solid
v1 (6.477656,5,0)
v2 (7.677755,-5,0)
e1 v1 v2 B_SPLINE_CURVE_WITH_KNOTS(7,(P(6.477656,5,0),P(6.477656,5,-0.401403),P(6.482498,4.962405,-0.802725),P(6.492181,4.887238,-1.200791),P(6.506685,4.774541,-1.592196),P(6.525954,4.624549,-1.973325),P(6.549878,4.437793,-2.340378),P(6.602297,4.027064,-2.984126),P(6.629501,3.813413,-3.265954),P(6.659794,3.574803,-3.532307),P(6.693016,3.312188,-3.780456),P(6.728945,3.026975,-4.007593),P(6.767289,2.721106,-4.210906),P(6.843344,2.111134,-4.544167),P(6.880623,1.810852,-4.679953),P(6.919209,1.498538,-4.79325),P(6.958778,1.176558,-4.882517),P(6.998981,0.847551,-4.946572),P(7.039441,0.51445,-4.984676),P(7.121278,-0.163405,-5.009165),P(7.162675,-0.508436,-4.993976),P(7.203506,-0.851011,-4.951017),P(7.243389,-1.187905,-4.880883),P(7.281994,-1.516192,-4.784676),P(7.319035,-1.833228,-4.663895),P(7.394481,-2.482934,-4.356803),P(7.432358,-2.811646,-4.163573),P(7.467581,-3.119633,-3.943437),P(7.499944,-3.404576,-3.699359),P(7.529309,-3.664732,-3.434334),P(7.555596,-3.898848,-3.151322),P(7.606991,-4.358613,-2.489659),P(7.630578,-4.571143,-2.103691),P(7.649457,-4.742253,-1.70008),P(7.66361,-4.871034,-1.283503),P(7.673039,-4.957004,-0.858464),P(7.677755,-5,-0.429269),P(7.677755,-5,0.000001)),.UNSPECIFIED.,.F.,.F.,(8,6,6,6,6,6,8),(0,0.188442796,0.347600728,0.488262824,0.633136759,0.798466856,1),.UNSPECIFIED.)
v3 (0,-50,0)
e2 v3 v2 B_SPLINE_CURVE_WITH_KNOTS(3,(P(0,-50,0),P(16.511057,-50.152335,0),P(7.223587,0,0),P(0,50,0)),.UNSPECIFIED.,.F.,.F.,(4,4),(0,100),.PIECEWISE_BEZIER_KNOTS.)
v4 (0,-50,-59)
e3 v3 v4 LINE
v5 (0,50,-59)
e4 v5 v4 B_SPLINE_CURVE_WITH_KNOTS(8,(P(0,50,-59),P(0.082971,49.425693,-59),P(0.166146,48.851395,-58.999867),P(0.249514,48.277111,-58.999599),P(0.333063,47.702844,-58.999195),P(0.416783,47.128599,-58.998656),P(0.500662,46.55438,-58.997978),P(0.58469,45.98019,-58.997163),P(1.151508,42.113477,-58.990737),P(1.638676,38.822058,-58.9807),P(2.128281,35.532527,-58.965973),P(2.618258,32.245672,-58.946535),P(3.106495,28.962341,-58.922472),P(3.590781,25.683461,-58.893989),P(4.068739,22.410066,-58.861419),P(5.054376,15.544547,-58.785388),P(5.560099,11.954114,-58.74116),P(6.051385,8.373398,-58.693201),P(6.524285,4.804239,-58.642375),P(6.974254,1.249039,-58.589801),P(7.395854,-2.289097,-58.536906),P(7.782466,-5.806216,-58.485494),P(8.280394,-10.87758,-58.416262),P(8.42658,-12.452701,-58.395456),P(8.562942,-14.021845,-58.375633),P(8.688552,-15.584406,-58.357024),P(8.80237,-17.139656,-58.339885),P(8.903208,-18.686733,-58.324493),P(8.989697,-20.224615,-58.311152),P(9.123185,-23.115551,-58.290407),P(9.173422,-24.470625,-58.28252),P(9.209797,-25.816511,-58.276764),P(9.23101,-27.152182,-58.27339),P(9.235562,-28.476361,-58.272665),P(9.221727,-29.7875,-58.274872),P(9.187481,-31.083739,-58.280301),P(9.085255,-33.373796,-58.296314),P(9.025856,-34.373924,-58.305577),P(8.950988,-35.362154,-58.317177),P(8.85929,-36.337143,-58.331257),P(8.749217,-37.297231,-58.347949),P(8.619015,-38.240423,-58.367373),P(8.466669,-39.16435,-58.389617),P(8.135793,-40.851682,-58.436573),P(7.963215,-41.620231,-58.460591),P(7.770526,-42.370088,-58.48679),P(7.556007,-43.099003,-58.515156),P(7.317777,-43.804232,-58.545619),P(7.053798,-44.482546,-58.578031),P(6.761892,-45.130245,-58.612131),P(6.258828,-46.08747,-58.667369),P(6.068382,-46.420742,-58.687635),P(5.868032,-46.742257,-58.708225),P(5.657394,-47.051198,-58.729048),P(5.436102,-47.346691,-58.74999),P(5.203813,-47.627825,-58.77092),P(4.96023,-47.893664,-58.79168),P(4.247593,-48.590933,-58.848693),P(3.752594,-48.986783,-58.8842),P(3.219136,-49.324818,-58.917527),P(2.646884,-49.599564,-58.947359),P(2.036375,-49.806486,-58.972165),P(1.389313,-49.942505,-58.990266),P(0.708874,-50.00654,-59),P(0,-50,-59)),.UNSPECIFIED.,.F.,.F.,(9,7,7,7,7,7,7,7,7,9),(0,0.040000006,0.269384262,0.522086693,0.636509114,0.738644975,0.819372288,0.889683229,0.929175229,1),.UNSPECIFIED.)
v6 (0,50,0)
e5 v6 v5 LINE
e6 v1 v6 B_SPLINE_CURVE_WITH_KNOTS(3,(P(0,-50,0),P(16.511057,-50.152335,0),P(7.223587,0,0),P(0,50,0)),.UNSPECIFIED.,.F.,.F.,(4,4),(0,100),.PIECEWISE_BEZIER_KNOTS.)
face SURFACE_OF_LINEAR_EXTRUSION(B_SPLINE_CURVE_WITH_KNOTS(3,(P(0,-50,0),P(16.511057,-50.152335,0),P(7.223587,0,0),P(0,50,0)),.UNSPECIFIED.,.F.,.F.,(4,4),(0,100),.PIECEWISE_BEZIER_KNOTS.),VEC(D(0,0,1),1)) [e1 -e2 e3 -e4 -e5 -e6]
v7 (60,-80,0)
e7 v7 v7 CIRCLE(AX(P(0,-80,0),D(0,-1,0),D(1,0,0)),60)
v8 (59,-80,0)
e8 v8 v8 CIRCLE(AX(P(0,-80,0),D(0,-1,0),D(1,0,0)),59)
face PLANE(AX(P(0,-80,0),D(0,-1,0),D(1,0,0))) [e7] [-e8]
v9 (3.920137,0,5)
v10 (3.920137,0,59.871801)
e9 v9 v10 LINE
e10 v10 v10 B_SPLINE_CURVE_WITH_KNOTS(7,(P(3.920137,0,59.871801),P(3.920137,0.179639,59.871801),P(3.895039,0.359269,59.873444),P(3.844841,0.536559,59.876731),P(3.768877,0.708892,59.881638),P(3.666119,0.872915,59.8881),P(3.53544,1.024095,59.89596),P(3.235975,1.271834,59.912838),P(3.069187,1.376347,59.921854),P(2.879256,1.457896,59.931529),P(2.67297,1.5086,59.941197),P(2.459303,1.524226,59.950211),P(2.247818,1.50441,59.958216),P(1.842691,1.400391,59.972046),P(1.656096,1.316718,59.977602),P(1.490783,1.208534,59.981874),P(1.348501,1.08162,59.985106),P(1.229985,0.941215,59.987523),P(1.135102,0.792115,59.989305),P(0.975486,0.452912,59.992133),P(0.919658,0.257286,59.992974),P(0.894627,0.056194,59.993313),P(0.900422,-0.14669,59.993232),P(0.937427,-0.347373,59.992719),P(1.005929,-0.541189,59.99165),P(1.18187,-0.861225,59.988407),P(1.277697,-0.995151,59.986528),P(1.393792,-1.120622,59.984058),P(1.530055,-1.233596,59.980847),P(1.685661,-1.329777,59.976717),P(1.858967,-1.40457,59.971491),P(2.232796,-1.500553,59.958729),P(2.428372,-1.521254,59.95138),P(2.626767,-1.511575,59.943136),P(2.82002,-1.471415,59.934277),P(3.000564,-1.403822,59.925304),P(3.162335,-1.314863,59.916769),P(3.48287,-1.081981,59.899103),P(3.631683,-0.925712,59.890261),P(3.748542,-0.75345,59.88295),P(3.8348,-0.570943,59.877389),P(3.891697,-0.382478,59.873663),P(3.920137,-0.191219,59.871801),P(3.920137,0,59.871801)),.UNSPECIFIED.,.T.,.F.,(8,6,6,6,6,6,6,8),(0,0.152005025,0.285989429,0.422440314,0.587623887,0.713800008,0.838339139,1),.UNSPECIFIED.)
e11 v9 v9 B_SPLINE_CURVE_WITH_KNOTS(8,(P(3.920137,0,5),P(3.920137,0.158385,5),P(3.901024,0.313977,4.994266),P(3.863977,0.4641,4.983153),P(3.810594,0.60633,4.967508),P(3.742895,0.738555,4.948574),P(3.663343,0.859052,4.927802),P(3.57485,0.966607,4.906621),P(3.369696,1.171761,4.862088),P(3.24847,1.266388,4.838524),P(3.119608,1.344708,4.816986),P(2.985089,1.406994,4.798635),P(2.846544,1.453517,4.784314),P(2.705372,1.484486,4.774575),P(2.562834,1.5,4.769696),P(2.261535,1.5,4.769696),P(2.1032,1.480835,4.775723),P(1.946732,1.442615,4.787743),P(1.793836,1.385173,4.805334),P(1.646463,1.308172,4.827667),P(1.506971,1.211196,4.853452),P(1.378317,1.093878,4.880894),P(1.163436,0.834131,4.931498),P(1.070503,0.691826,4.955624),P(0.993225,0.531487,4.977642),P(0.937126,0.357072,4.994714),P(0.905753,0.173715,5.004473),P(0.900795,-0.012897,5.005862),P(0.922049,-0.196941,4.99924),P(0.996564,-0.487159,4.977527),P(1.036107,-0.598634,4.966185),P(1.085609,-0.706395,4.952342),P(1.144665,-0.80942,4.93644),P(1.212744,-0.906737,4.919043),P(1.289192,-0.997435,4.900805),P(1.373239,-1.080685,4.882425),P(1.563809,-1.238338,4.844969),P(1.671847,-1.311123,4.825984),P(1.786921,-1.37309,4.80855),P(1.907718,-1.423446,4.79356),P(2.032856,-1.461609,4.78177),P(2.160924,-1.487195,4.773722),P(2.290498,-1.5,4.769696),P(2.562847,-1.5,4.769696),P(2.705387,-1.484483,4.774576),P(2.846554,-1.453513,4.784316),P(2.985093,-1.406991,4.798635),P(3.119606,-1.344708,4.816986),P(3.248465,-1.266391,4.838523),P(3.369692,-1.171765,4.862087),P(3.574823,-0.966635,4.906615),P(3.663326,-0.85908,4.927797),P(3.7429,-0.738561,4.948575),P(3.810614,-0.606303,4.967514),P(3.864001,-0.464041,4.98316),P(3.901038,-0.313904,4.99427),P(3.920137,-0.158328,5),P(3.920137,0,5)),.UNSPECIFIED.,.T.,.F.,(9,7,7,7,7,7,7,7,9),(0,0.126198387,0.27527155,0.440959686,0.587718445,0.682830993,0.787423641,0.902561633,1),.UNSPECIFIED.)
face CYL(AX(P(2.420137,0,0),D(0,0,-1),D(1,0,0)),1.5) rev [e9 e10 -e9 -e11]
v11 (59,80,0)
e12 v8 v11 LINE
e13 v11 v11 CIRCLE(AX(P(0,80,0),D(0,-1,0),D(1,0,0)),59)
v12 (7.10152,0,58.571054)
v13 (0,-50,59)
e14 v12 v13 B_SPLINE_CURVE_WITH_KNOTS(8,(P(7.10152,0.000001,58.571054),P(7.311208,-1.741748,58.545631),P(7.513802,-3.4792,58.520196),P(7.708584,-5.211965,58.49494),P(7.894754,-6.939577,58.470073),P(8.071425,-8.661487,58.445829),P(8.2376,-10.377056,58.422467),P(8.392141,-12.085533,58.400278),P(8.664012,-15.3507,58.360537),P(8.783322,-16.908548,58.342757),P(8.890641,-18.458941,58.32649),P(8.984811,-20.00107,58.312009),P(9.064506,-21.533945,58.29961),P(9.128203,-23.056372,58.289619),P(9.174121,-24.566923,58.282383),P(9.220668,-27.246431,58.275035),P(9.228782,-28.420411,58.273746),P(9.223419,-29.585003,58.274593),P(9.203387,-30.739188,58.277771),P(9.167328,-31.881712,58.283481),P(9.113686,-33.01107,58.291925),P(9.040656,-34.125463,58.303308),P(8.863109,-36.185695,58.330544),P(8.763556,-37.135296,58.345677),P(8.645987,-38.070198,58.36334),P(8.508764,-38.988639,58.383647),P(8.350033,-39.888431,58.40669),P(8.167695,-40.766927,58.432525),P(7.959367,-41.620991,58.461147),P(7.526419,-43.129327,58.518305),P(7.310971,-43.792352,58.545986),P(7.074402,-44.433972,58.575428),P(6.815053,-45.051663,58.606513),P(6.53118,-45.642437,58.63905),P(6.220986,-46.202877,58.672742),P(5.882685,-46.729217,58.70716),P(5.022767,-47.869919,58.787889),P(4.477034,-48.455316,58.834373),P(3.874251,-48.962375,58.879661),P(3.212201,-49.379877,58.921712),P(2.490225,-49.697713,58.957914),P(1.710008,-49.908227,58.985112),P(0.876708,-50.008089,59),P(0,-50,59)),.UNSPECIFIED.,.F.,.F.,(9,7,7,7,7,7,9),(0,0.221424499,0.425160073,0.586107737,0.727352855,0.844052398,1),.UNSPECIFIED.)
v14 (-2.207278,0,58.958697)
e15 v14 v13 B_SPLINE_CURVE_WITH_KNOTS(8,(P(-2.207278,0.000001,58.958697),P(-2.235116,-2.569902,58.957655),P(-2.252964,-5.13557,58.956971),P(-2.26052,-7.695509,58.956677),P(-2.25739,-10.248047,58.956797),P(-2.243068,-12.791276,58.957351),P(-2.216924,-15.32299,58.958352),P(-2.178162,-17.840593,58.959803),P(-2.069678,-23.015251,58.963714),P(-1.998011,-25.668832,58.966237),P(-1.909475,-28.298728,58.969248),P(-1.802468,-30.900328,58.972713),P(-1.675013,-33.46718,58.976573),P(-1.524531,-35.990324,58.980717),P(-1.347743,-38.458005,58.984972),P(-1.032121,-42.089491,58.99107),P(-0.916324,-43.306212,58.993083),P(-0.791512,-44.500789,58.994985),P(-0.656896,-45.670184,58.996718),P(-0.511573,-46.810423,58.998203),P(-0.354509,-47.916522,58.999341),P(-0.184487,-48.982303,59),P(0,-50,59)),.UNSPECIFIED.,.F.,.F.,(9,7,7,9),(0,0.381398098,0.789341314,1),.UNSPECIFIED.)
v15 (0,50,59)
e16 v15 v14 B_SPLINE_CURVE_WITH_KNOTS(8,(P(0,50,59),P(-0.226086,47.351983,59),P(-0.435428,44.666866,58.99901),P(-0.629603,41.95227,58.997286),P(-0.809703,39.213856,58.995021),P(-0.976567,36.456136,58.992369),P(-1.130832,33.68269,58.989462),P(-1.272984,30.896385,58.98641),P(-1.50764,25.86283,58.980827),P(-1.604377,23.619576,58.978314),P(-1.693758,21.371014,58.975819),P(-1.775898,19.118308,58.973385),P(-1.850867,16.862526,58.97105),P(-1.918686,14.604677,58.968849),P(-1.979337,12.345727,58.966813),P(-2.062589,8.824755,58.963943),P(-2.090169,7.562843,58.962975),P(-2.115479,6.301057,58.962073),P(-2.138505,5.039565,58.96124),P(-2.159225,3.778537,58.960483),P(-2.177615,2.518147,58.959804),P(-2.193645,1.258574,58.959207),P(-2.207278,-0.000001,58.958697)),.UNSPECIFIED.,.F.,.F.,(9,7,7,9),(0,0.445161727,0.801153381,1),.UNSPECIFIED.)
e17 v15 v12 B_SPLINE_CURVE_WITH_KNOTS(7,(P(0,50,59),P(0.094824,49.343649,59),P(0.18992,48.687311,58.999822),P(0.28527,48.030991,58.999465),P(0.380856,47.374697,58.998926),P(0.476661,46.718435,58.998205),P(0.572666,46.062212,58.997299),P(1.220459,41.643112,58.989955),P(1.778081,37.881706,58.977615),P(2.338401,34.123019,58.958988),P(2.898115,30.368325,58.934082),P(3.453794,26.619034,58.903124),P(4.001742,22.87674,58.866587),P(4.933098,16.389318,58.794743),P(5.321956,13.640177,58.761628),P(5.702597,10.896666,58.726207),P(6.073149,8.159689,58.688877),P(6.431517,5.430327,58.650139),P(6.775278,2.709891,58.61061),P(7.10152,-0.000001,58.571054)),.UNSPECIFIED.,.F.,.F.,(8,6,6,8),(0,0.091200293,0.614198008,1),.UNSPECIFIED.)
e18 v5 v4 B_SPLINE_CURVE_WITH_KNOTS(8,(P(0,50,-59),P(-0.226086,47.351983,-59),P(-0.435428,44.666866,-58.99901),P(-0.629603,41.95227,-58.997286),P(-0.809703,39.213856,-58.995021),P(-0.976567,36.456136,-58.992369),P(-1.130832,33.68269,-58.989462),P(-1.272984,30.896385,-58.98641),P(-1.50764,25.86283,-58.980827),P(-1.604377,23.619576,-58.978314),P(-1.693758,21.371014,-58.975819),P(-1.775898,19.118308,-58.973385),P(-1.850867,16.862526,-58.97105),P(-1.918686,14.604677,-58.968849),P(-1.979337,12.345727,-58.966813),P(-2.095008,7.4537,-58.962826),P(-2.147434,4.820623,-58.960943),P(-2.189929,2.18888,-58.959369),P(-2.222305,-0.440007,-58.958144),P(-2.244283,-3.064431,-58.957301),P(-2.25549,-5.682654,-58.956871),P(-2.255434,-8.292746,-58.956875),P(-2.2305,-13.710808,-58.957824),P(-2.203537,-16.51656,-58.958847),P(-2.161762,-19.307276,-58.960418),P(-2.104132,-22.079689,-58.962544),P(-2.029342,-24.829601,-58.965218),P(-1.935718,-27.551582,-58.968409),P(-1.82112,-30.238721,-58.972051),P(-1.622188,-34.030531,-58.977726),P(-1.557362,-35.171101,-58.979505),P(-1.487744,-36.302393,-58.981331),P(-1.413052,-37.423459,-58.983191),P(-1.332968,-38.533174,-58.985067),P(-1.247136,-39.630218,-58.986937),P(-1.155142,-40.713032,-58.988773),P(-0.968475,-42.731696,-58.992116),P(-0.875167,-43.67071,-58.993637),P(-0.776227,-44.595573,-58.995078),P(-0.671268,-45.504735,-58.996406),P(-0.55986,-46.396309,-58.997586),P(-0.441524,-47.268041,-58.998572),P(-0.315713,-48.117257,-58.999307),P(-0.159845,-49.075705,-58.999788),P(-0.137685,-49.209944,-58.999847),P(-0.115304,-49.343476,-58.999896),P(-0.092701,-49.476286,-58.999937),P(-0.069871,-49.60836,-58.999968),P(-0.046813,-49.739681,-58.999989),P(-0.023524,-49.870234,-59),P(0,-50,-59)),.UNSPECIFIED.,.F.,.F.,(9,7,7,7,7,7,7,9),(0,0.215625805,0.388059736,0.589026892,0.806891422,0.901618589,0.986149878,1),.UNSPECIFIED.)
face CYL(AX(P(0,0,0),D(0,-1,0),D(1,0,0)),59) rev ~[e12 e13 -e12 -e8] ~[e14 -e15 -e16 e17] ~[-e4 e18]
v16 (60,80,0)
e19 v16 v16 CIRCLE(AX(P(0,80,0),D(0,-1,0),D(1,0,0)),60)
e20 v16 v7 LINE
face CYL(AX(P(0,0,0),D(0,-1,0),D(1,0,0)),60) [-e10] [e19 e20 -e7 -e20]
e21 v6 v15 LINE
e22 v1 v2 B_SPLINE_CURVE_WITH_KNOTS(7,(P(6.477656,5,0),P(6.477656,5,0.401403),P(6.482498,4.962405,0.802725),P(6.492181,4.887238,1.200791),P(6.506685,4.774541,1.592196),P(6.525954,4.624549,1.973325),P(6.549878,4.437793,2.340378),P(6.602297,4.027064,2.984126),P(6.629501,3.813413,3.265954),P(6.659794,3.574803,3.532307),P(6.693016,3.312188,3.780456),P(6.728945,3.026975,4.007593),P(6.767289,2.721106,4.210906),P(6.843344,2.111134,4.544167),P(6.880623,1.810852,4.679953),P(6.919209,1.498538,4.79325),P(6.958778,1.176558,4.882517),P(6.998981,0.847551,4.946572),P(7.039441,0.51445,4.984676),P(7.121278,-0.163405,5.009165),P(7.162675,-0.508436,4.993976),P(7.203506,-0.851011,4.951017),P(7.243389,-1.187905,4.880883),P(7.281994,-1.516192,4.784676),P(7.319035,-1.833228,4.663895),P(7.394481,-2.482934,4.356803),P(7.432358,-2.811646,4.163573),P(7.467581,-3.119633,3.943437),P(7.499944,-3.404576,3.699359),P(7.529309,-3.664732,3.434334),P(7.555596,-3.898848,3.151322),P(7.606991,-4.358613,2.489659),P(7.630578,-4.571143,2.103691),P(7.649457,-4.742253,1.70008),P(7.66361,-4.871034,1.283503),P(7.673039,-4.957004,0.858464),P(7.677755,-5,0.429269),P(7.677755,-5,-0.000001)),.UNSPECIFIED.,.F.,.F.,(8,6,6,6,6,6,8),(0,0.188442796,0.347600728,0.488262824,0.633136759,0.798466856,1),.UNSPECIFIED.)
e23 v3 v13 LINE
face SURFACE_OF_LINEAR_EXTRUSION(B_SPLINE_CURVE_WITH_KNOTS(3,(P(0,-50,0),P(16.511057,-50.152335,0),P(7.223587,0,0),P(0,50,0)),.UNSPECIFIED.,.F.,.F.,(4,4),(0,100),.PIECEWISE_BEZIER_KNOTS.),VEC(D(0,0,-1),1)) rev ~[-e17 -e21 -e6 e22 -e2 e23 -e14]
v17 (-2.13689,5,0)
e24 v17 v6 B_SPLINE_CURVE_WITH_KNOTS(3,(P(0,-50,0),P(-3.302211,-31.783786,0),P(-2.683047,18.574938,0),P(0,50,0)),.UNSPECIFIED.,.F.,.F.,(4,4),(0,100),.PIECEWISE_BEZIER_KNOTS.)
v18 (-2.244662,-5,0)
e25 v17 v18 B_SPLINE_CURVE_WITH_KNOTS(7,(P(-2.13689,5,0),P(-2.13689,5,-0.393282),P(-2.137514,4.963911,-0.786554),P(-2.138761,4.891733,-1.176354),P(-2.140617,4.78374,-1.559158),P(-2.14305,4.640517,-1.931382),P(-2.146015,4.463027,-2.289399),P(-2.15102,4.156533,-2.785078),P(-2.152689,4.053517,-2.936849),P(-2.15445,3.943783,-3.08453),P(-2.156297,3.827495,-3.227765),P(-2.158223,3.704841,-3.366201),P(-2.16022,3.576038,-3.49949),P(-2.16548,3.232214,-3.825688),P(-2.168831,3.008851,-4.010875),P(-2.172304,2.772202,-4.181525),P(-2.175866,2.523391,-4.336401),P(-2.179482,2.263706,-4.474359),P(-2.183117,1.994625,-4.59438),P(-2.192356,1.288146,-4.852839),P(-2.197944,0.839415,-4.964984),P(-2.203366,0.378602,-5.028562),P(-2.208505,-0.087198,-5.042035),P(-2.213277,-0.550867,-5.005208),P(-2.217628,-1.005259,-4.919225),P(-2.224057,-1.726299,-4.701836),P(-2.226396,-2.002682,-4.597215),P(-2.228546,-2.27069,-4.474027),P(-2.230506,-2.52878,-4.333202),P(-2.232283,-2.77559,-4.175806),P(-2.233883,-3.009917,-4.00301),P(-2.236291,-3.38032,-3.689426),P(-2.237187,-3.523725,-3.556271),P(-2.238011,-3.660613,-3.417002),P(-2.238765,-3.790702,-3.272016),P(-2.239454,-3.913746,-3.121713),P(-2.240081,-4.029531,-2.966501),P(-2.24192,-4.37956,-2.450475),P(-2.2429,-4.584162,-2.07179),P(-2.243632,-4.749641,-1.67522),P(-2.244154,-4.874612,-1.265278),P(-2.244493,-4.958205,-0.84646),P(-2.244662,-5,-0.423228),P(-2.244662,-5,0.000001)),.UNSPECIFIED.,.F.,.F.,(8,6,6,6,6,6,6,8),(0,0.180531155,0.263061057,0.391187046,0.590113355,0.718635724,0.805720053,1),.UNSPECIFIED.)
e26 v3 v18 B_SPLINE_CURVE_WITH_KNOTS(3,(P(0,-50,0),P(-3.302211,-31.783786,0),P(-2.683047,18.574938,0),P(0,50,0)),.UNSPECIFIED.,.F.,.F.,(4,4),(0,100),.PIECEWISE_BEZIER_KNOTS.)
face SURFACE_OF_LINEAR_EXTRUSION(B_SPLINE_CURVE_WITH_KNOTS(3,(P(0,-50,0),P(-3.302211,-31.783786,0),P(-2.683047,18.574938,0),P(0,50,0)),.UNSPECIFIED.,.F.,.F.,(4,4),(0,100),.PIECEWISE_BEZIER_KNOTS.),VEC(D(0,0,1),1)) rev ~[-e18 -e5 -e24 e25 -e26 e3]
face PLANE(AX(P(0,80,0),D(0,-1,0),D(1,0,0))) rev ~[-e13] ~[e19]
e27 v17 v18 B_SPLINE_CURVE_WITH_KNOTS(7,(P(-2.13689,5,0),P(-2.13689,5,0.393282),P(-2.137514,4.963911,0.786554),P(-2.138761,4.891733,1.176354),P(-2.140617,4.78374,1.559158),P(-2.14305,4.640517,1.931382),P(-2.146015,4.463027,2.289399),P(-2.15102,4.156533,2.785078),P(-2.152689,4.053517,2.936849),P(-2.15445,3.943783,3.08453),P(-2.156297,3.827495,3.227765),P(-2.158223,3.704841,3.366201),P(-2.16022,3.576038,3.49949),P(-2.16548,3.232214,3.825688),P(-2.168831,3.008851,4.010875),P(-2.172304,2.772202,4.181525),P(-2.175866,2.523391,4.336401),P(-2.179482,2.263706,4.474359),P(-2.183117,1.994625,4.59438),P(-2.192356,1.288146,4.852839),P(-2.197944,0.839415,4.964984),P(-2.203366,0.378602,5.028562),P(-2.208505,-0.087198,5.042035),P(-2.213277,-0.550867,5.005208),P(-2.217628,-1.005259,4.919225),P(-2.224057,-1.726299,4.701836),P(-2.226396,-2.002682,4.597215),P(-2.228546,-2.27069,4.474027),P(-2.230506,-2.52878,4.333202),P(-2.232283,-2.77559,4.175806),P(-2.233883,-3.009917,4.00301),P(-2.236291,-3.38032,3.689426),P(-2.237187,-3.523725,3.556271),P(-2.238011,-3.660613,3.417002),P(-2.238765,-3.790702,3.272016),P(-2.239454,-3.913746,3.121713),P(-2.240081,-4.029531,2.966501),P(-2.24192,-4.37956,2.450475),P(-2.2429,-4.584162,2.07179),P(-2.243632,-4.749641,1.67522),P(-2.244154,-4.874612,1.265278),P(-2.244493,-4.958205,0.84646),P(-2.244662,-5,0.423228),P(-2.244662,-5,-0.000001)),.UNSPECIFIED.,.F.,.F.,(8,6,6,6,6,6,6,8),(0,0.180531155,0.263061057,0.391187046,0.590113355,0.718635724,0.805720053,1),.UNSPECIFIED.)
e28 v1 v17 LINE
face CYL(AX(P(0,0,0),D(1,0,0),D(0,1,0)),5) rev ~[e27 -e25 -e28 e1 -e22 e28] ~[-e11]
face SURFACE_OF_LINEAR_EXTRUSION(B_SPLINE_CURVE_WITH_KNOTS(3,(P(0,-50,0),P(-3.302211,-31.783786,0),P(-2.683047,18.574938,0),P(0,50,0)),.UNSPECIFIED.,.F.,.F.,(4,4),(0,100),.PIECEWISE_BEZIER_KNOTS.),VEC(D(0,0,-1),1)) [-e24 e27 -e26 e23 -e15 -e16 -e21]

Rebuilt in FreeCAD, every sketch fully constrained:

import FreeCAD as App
import Part
import Sketcher

V = App.Vector

doc = App.newDocument("Part")
body = doc.addObject("PartDesign::Body", "Body")

# Sketch on XZ plane
sketch1 = doc.addObject("Sketcher::SketchObject", "Sketch")
body.addObject(sketch1)
sketch1.AttachmentSupport = (doc.XZ_Plane, [""])
sketch1.MapMode = "FlatFace"
sketch1.addGeometry([
    Part.Circle(V(0, 0, 0), V(0, 0, 1), 60),
    Part.Circle(V(0, 0, 0), V(0, 0, 1), 59),
], False)
sketch1.addConstraint([
    Sketcher.Constraint("Coincident", 0, 3, -1, 1),
    Sketcher.Constraint("Coincident", 1, 3, -1, 1),
    Sketcher.Constraint("Diameter", 0, 120.0),
    Sketcher.Constraint("Diameter", 1, 118.0),
])
pad1 = doc.addObject("PartDesign::Pad", "Pad")
body.addObject(pad1)
pad1.Profile = sketch1
pad1.Type = "TwoLengths"
pad1.Length = 80
pad1.Length2 = 80

# Sketch on XY plane
sketch2 = doc.addObject("Sketcher::SketchObject", "Sketch001")
body.addObject(sketch2)
sketch2.AttachmentSupport = (doc.XY_Plane, [""])
sketch2.MapMode = "FlatFace"
sketch2.addGeometry([
    Part.BSplineCurve([V(0, -50, 0), V(-3.302211, -31.783786, 0), V(-2.683047, 18.574938, 0), V(0, 50, 0)], [4, 4], [0, 100], False, 3, [1, 1, 1, 1], False),
    Part.BSplineCurve([V(0, -50, 0), V(16.511057, -50.152335, 0), V(7.223587, 0, 0), V(0, 50, 0)], [4, 4], [0, 100], False, 3, [1, 1, 1, 1], False),
], False)
sketch2.addConstraint([
    Sketcher.Constraint("Block", 0),
    Sketcher.Constraint("Block", 1),
])
pad2 = doc.addObject("PartDesign::Pad", "Pad001")
body.addObject(pad2)
pad2.Profile = sketch2
pad2.Type = "TwoLengths"
pad2.Length = 59
pad2.Length2 = 59

# Sketch on YZ plane
sketch3 = doc.addObject("Sketcher::SketchObject", "Sketch002")
body.addObject(sketch3)
sketch3.AttachmentSupport = (doc.YZ_Plane, [""])
sketch3.MapMode = "FlatFace"
sketch3.addGeometry(Part.Circle(V(0, 0, 0), V(0, 0, 1), 5), False)
sketch3.addConstraint([
    Sketcher.Constraint("Coincident", 0, 3, -1, 1),
    Sketcher.Constraint("Diameter", 0, 10.0),
])
pocket1 = doc.addObject("PartDesign::Pocket", "Pocket")
body.addObject(pocket1)
pocket1.Profile = sketch3
pocket1.Type = "TwoLengths"
pocket1.Length = 2.245662
pocket1.Length2 = 7.678755

# Sketch on XY plane
sketch4 = doc.addObject("Sketcher::SketchObject", "Sketch003")
body.addObject(sketch4)
sketch4.AttachmentSupport = (doc.XY_Plane, [""])
sketch4.MapMode = "FlatFace"
sketch4.addGeometry(Part.Circle(V(2.4, 0, 0), V(0, 0, 1), 1.5), False)
sketch4.addConstraint([
    Sketcher.Constraint("PointOnObject", 0, 3, -1),
    Sketcher.Constraint("Diameter", 0, 3.0),
    Sketcher.Constraint("DistanceX", -1, 1, 0, 3, 2.420137),
])
pocket2 = doc.addObject("PartDesign::Pocket", "Pocket001")
body.addObject(pocket2)
pocket2.Profile = sketch4
pocket2.Type = "ThroughAll"
pocket2.Reversed = True

doc.recompute()
